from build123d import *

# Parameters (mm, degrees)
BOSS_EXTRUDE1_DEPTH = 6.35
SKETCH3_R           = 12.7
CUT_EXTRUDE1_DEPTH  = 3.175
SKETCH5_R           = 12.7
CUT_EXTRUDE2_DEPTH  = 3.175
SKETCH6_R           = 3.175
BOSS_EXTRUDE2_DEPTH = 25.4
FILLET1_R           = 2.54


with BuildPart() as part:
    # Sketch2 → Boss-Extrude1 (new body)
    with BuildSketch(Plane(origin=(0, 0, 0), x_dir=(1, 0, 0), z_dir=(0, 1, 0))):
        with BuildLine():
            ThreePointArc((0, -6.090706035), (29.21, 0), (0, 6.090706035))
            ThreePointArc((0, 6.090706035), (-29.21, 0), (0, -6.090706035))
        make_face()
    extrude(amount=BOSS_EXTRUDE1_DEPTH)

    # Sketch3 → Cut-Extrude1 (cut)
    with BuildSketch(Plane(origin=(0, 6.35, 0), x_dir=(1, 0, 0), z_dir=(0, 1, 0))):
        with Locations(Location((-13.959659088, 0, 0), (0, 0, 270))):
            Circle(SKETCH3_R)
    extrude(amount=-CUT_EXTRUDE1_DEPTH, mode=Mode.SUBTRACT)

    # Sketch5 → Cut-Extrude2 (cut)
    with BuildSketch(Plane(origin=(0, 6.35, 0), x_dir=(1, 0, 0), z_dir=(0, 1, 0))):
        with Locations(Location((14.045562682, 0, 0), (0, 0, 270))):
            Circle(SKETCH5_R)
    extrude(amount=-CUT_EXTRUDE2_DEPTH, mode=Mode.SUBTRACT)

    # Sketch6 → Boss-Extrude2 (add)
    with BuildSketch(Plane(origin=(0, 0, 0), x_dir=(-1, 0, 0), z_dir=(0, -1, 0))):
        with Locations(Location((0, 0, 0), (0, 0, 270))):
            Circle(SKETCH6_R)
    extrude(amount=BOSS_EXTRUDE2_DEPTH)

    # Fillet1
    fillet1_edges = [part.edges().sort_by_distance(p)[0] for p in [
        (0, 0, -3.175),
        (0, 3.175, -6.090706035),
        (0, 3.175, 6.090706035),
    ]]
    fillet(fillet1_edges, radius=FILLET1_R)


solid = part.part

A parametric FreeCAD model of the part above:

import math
import FreeCAD as App
import Part
import Sketcher

V = App.Vector
Q = App.Units.Quantity


def edges_at(feature, points):
    """Names of the edges that pass closest to the given points."""
    edges = feature.Shape.Edges
    near = lambda p: min(range(len(edges)), key=lambda i: edges[i].distToShape(Part.Vertex(*p))[0])
    return sorted({f"Edge{near(p) + 1}" for p in points})

doc = App.newDocument("Part")
params = doc.addObject("Spreadsheet::Sheet", "Params")
for row, (alias, value) in enumerate([
    ("sketch1_radius", "0.6 in"),
    ("pad1_length", "0.25 in"),
    ("sketch2_diameter", "1 in"),
    ("pocket1_length", "0.125 in"),
    ("sketch3_diameter", "1 in"),
    ("pocket2_length", "0.125 in"),
    ("sketch4_diameter", "0.25 in"),
    ("pad2_length", "1 in"),
    ("fillet_radius", "0.1 in"),
], start=1):
    params.set(f"A{row}", alias)
    params.set(f"B{row}", "=" + value)
    params.setAlias(f"B{row}", alias)

body = doc.addObject("PartDesign::Body", "Body")

sketch1 = doc.addObject("Sketcher::SketchObject", "Sketch")
body.addObject(sketch1)
sketch1.AttachmentSupport = (doc.XZ_Plane, [""])
sketch1.MapMode = "FlatFace"
sketch1.addGeometry(Part.ArcOfCircle(Part.Circle(V(14, 0, 0), V(0, 0, 1), 15), math.radians(-156), math.radians(156)), False)
sketch1.addGeometry(Part.ArcOfCircle(Part.Circle(V(-14, 0, 0), V(0, 0, 1), 15), math.radians(24), math.radians(336)), False)
sketch1.addConstraint(Sketcher.Constraint("Coincident", 0, 1, 1, 2))
sketch1.addConstraint(Sketcher.Constraint("Coincident", 1, 1, 0, 2))
sketch1.addConstraint(Sketcher.Constraint("Equal", 0, 1))
sketch1.addConstraint(Sketcher.Constraint("Symmetric", 0, 3, 1, 3, -1, 1))
sketch1.addConstraint(Sketcher.Constraint("PointOnObject", 0, 3, -1))
sketch1.addConstraint(Sketcher.Constraint("Radius", 0, Q("0.6 in")))
sketch1.addConstraint(Sketcher.Constraint("DistanceX", 1, 3, 0, 3, Q("1.1 in")))
sketch1.setExpression("Constraints[5]", "Params.sketch1_radius")
pad1 = doc.addObject("PartDesign::Pad", "Pad")
body.addObject(pad1)
pad1.Profile = sketch1
pad1.setExpression("Length", "Params.pad1_length")
pad1.Reversed = True

sketch2 = doc.addObject("Sketcher::SketchObject", "Sketch001")
body.addObject(sketch2)
sketch2.AttachmentSupport = (doc.XZ_Plane, [""])
sketch2.MapMode = "FlatFace"
sketch2.AttachmentOffset = App.Placement(V(0, 0, -0.25 * 25.4), App.Rotation())
sketch2.addGeometry(Part.Circle(V(-14, 0, 0), V(0, 0, 1), 13), False)
sketch2.addConstraint(Sketcher.Constraint("PointOnObject", 0, 3, -1))
sketch2.addConstraint(Sketcher.Constraint("Diameter", 0, Q("1 in")))
sketch2.addConstraint(Sketcher.Constraint("DistanceX", 0, 3, -1, 1, Q("13.959659 mm")))
sketch2.setExpression("Constraints[1]", "Params.sketch2_diameter")
pocket1 = doc.addObject("PartDesign::Pocket", "Pocket")
body.addObject(pocket1)
pocket1.Profile = sketch2
pocket1.setExpression("Length", "Params.pocket1_length")
pocket1.Reversed = True

sketch3 = doc.addObject("Sketcher::SketchObject", "Sketch002")
body.addObject(sketch3)
sketch3.AttachmentSupport = (doc.XZ_Plane, [""])
sketch3.MapMode = "FlatFace"
sketch3.AttachmentOffset = App.Placement(V(0, 0, -0.25 * 25.4), App.Rotation())
sketch3.addGeometry(Part.Circle(V(14, 0, 0), V(0, 0, 1), 13), False)
sketch3.addConstraint(Sketcher.Constraint("PointOnObject", 0, 3, -1))
sketch3.addConstraint(Sketcher.Constraint("Diameter", 0, Q("1 in")))
sketch3.addConstraint(Sketcher.Constraint("DistanceX", -1, 1, 0, 3, Q("14.045563 mm")))
sketch3.setExpression("Constraints[1]", "Params.sketch3_diameter")
pocket2 = doc.addObject("PartDesign::Pocket", "Pocket001")
body.addObject(pocket2)
pocket2.Profile = sketch3
pocket2.setExpression("Length", "Params.pocket2_length")
pocket2.Reversed = True

sketch4 = doc.addObject("Sketcher::SketchObject", "Sketch003")
body.addObject(sketch4)
sketch4.AttachmentSupport = (doc.XZ_Plane, [""])
sketch4.MapMode = "FlatFace"
sketch4.addGeometry(Part.Circle(V(0, 0, 0), V(0, 0, 1), 3.2), False)
sketch4.addConstraint(Sketcher.Constraint("Coincident", 0, 3, -1, 1))
sketch4.addConstraint(Sketcher.Constraint("Diameter", 0, Q("0.25 in")))
sketch4.setExpression("Constraints[1]", "Params.sketch4_diameter")
pad2 = doc.addObject("PartDesign::Pad", "Pad001")
body.addObject(pad2)
pad2.Profile = sketch4
pad2.setExpression("Length", "Params.pad2_length")
doc.recompute()

fillet = doc.addObject("PartDesign::Fillet", "Fillet")
body.addObject(fillet)
fillet.Base = (pad2, edges_at(pad2, [(0, 0, -3.175), (0, 3.175, -6.091), (0, 3.175, 6.091)]))
fillet.setExpression("Radius", "Params.fillet_radius")

doc.recompute()
